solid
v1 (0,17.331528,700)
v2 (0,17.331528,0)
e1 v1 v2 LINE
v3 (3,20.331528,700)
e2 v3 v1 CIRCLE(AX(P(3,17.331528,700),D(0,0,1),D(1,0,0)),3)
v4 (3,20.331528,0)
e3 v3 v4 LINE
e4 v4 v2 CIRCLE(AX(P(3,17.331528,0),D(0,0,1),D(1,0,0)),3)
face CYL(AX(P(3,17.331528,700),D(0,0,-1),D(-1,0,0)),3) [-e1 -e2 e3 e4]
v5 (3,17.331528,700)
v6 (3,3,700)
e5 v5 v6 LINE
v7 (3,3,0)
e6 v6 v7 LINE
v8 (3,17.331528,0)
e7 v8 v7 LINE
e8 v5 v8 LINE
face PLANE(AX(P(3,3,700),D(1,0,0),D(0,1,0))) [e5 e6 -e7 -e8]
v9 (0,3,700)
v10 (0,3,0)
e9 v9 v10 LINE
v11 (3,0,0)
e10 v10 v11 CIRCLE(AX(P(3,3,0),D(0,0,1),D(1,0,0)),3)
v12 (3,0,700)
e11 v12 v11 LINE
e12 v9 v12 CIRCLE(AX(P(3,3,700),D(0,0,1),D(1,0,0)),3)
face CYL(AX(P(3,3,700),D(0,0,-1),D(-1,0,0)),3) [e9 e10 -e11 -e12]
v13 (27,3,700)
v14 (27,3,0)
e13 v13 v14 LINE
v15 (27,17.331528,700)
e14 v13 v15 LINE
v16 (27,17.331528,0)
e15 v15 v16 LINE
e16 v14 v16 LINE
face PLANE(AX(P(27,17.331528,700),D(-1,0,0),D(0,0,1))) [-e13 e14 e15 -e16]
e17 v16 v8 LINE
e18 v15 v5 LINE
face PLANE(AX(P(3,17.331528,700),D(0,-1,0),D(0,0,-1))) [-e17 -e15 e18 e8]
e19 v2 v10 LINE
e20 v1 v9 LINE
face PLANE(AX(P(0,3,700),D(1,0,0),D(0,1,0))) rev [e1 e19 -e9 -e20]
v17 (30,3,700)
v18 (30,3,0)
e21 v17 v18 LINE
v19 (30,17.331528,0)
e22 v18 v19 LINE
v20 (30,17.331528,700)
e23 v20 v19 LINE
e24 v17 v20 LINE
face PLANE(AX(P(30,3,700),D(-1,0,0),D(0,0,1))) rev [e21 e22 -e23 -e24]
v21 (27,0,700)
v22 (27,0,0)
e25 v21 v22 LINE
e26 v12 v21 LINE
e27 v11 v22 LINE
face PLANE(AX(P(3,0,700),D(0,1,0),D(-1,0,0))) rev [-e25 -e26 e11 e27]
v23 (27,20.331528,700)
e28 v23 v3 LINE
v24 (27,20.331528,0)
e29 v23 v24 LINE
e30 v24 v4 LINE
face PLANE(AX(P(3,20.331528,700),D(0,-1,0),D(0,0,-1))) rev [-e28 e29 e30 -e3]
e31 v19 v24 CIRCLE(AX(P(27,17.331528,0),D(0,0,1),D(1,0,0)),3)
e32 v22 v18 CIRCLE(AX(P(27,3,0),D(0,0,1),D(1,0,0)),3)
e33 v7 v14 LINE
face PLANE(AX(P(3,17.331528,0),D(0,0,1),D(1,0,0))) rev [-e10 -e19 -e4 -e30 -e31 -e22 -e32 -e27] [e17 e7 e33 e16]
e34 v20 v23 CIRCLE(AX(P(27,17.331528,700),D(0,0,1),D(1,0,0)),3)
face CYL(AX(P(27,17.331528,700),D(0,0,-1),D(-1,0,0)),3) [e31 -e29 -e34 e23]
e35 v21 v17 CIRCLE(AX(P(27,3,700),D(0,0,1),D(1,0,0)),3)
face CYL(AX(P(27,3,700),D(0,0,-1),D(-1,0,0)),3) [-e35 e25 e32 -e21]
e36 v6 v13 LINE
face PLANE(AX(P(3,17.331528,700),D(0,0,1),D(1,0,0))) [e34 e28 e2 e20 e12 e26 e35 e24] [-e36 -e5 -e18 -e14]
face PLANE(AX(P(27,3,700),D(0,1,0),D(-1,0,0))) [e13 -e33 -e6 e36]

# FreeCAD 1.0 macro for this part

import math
import FreeCAD as App
import Part
import Sketcher

V = App.Vector


def add_polygon(sketch, points):
    """Adds a closed chain of lines whose ends are joined by coincident constraints."""
    first, n = sketch.GeometryCount, len(points)
    for a, b in zip(points, points[1:] + points[:1]):
        sketch.addGeometry(Part.LineSegment(App.Vector(*a, 0), App.Vector(*b, 0)), False)
    for i in range(n):
        sketch.addConstraint(Sketcher.Constraint("Coincident", first + i, 2, first + (i + 1) % n, 1))

doc = App.newDocument("Part")
params = doc.addObject("Spreadsheet::Sheet", "Params")
for row, (alias, value) in enumerate([
    ("sketch1_radius", "3 mm"),
    ("sketch1_width", "24 mm"),
    ("pad1_length", "700 mm"),
], start=1):
    params.set(f"A{row}", alias)
    params.set(f"B{row}", "=" + value)
    params.setAlias(f"B{row}", alias)

body = doc.addObject("PartDesign::Body", "Body")

sketch1 = body.newObject("Sketcher::SketchObject", "Sketch")
sketch1.AttachmentSupport = (doc.getObject("XY_Plane"), [""])
sketch1.MapMode = "FlatFace"
sketch1.addGeometry(Part.LineSegment(V(3, 0, 0), V(27, 0, 0)), False)
sketch1.addGeometry(Part.ArcOfCircle(Part.Circle(V(27, 3, 0), V(0, 0, 1), 3), math.radians(-90), math.radians(0)), False)
sketch1.addGeometry(Part.LineSegment(V(30, 3, 0), V(30, 17.3, 0)), False)
sketch1.addGeometry(Part.ArcOfCircle(Part.Circle(V(27, 17.3, 0), V(0, 0, 1), 3), math.radians(0), math.radians(90)), False)
sketch1.addGeometry(Part.LineSegment(V(27, 20.3, 0), V(3, 20.3, 0)), False)
sketch1.addGeometry(Part.ArcOfCircle(Part.Circle(V(3, 17.3, 0), V(0, 0, 1), 3), math.radians(90), math.radians(180)), False)
sketch1.addGeometry(Part.LineSegment(V(0, 17.3, 0), V(0, 3, 0)), False)
sketch1.addGeometry(Part.ArcOfCircle(Part.Circle(V(3, 3, 0), V(0, 0, 1), 3), math.radians(180), math.radians(270)), False)
add_polygon(sketch1, [(27, 3), (3, 3), (3, 17.3), (27, 17.3)])
sketch1.addConstraint([
    Sketcher.Constraint("Tangent", 0, 2, 1, 1),
    Sketcher.Constraint("Tangent", 1, 2, 2, 1),
    Sketcher.Constraint("Tangent", 2, 2, 3, 1),
    Sketcher.Constraint("Tangent", 3, 2, 4, 1),
    Sketcher.Constraint("Tangent", 4, 2, 5, 1),
    Sketcher.Constraint("Tangent", 5, 2, 6, 1),
    Sketcher.Constraint("Tangent", 6, 2, 7, 1),
    Sketcher.Constraint("Tangent", 7, 2, 0, 1),
    Sketcher.Constraint("Horizontal", 0),
    Sketcher.Constraint("Vertical", 2),
    Sketcher.Constraint("Horizontal", 4),
    Sketcher.Constraint("Vertical", 6),
    Sketcher.Constraint("Horizontal", 8),
    Sketcher.Constraint("Vertical", 9),
    Sketcher.Constraint("Horizontal", 10),
    Sketcher.Constraint("Vertical", 11),
    Sketcher.Constraint("Coincident", 8, 2, 7, 3),
    Sketcher.Constraint("Coincident", 9, 2, 5, 3),
    Sketcher.Constraint("Coincident", 10, 2, 3, 3),
    Sketcher.Constraint("Equal", 1, 3),
    Sketcher.Constraint("PointOnObject", 0, 2, -1),
    Sketcher.Constraint("PointOnObject", 5, 2, -2),
    Sketcher.Constraint("Radius", 1, 3.0),
    Sketcher.Constraint("DistanceX", 0, 1, 0, 2, 24.0),
    Sketcher.Constraint("DistanceY", 2, 1, 2, 2, 14.331528),
])
sketch1.setExpression("Constraints[26]", "Params.sketch1_radius")
sketch1.setExpression("Constraints[27]", "Params.sketch1_width")
pad1 = body.newObject("PartDesign::Pad", "Pad")
pad1.Profile = sketch1
pad1.setExpression("Length", "Params.pad1_length")

doc.recompute()
